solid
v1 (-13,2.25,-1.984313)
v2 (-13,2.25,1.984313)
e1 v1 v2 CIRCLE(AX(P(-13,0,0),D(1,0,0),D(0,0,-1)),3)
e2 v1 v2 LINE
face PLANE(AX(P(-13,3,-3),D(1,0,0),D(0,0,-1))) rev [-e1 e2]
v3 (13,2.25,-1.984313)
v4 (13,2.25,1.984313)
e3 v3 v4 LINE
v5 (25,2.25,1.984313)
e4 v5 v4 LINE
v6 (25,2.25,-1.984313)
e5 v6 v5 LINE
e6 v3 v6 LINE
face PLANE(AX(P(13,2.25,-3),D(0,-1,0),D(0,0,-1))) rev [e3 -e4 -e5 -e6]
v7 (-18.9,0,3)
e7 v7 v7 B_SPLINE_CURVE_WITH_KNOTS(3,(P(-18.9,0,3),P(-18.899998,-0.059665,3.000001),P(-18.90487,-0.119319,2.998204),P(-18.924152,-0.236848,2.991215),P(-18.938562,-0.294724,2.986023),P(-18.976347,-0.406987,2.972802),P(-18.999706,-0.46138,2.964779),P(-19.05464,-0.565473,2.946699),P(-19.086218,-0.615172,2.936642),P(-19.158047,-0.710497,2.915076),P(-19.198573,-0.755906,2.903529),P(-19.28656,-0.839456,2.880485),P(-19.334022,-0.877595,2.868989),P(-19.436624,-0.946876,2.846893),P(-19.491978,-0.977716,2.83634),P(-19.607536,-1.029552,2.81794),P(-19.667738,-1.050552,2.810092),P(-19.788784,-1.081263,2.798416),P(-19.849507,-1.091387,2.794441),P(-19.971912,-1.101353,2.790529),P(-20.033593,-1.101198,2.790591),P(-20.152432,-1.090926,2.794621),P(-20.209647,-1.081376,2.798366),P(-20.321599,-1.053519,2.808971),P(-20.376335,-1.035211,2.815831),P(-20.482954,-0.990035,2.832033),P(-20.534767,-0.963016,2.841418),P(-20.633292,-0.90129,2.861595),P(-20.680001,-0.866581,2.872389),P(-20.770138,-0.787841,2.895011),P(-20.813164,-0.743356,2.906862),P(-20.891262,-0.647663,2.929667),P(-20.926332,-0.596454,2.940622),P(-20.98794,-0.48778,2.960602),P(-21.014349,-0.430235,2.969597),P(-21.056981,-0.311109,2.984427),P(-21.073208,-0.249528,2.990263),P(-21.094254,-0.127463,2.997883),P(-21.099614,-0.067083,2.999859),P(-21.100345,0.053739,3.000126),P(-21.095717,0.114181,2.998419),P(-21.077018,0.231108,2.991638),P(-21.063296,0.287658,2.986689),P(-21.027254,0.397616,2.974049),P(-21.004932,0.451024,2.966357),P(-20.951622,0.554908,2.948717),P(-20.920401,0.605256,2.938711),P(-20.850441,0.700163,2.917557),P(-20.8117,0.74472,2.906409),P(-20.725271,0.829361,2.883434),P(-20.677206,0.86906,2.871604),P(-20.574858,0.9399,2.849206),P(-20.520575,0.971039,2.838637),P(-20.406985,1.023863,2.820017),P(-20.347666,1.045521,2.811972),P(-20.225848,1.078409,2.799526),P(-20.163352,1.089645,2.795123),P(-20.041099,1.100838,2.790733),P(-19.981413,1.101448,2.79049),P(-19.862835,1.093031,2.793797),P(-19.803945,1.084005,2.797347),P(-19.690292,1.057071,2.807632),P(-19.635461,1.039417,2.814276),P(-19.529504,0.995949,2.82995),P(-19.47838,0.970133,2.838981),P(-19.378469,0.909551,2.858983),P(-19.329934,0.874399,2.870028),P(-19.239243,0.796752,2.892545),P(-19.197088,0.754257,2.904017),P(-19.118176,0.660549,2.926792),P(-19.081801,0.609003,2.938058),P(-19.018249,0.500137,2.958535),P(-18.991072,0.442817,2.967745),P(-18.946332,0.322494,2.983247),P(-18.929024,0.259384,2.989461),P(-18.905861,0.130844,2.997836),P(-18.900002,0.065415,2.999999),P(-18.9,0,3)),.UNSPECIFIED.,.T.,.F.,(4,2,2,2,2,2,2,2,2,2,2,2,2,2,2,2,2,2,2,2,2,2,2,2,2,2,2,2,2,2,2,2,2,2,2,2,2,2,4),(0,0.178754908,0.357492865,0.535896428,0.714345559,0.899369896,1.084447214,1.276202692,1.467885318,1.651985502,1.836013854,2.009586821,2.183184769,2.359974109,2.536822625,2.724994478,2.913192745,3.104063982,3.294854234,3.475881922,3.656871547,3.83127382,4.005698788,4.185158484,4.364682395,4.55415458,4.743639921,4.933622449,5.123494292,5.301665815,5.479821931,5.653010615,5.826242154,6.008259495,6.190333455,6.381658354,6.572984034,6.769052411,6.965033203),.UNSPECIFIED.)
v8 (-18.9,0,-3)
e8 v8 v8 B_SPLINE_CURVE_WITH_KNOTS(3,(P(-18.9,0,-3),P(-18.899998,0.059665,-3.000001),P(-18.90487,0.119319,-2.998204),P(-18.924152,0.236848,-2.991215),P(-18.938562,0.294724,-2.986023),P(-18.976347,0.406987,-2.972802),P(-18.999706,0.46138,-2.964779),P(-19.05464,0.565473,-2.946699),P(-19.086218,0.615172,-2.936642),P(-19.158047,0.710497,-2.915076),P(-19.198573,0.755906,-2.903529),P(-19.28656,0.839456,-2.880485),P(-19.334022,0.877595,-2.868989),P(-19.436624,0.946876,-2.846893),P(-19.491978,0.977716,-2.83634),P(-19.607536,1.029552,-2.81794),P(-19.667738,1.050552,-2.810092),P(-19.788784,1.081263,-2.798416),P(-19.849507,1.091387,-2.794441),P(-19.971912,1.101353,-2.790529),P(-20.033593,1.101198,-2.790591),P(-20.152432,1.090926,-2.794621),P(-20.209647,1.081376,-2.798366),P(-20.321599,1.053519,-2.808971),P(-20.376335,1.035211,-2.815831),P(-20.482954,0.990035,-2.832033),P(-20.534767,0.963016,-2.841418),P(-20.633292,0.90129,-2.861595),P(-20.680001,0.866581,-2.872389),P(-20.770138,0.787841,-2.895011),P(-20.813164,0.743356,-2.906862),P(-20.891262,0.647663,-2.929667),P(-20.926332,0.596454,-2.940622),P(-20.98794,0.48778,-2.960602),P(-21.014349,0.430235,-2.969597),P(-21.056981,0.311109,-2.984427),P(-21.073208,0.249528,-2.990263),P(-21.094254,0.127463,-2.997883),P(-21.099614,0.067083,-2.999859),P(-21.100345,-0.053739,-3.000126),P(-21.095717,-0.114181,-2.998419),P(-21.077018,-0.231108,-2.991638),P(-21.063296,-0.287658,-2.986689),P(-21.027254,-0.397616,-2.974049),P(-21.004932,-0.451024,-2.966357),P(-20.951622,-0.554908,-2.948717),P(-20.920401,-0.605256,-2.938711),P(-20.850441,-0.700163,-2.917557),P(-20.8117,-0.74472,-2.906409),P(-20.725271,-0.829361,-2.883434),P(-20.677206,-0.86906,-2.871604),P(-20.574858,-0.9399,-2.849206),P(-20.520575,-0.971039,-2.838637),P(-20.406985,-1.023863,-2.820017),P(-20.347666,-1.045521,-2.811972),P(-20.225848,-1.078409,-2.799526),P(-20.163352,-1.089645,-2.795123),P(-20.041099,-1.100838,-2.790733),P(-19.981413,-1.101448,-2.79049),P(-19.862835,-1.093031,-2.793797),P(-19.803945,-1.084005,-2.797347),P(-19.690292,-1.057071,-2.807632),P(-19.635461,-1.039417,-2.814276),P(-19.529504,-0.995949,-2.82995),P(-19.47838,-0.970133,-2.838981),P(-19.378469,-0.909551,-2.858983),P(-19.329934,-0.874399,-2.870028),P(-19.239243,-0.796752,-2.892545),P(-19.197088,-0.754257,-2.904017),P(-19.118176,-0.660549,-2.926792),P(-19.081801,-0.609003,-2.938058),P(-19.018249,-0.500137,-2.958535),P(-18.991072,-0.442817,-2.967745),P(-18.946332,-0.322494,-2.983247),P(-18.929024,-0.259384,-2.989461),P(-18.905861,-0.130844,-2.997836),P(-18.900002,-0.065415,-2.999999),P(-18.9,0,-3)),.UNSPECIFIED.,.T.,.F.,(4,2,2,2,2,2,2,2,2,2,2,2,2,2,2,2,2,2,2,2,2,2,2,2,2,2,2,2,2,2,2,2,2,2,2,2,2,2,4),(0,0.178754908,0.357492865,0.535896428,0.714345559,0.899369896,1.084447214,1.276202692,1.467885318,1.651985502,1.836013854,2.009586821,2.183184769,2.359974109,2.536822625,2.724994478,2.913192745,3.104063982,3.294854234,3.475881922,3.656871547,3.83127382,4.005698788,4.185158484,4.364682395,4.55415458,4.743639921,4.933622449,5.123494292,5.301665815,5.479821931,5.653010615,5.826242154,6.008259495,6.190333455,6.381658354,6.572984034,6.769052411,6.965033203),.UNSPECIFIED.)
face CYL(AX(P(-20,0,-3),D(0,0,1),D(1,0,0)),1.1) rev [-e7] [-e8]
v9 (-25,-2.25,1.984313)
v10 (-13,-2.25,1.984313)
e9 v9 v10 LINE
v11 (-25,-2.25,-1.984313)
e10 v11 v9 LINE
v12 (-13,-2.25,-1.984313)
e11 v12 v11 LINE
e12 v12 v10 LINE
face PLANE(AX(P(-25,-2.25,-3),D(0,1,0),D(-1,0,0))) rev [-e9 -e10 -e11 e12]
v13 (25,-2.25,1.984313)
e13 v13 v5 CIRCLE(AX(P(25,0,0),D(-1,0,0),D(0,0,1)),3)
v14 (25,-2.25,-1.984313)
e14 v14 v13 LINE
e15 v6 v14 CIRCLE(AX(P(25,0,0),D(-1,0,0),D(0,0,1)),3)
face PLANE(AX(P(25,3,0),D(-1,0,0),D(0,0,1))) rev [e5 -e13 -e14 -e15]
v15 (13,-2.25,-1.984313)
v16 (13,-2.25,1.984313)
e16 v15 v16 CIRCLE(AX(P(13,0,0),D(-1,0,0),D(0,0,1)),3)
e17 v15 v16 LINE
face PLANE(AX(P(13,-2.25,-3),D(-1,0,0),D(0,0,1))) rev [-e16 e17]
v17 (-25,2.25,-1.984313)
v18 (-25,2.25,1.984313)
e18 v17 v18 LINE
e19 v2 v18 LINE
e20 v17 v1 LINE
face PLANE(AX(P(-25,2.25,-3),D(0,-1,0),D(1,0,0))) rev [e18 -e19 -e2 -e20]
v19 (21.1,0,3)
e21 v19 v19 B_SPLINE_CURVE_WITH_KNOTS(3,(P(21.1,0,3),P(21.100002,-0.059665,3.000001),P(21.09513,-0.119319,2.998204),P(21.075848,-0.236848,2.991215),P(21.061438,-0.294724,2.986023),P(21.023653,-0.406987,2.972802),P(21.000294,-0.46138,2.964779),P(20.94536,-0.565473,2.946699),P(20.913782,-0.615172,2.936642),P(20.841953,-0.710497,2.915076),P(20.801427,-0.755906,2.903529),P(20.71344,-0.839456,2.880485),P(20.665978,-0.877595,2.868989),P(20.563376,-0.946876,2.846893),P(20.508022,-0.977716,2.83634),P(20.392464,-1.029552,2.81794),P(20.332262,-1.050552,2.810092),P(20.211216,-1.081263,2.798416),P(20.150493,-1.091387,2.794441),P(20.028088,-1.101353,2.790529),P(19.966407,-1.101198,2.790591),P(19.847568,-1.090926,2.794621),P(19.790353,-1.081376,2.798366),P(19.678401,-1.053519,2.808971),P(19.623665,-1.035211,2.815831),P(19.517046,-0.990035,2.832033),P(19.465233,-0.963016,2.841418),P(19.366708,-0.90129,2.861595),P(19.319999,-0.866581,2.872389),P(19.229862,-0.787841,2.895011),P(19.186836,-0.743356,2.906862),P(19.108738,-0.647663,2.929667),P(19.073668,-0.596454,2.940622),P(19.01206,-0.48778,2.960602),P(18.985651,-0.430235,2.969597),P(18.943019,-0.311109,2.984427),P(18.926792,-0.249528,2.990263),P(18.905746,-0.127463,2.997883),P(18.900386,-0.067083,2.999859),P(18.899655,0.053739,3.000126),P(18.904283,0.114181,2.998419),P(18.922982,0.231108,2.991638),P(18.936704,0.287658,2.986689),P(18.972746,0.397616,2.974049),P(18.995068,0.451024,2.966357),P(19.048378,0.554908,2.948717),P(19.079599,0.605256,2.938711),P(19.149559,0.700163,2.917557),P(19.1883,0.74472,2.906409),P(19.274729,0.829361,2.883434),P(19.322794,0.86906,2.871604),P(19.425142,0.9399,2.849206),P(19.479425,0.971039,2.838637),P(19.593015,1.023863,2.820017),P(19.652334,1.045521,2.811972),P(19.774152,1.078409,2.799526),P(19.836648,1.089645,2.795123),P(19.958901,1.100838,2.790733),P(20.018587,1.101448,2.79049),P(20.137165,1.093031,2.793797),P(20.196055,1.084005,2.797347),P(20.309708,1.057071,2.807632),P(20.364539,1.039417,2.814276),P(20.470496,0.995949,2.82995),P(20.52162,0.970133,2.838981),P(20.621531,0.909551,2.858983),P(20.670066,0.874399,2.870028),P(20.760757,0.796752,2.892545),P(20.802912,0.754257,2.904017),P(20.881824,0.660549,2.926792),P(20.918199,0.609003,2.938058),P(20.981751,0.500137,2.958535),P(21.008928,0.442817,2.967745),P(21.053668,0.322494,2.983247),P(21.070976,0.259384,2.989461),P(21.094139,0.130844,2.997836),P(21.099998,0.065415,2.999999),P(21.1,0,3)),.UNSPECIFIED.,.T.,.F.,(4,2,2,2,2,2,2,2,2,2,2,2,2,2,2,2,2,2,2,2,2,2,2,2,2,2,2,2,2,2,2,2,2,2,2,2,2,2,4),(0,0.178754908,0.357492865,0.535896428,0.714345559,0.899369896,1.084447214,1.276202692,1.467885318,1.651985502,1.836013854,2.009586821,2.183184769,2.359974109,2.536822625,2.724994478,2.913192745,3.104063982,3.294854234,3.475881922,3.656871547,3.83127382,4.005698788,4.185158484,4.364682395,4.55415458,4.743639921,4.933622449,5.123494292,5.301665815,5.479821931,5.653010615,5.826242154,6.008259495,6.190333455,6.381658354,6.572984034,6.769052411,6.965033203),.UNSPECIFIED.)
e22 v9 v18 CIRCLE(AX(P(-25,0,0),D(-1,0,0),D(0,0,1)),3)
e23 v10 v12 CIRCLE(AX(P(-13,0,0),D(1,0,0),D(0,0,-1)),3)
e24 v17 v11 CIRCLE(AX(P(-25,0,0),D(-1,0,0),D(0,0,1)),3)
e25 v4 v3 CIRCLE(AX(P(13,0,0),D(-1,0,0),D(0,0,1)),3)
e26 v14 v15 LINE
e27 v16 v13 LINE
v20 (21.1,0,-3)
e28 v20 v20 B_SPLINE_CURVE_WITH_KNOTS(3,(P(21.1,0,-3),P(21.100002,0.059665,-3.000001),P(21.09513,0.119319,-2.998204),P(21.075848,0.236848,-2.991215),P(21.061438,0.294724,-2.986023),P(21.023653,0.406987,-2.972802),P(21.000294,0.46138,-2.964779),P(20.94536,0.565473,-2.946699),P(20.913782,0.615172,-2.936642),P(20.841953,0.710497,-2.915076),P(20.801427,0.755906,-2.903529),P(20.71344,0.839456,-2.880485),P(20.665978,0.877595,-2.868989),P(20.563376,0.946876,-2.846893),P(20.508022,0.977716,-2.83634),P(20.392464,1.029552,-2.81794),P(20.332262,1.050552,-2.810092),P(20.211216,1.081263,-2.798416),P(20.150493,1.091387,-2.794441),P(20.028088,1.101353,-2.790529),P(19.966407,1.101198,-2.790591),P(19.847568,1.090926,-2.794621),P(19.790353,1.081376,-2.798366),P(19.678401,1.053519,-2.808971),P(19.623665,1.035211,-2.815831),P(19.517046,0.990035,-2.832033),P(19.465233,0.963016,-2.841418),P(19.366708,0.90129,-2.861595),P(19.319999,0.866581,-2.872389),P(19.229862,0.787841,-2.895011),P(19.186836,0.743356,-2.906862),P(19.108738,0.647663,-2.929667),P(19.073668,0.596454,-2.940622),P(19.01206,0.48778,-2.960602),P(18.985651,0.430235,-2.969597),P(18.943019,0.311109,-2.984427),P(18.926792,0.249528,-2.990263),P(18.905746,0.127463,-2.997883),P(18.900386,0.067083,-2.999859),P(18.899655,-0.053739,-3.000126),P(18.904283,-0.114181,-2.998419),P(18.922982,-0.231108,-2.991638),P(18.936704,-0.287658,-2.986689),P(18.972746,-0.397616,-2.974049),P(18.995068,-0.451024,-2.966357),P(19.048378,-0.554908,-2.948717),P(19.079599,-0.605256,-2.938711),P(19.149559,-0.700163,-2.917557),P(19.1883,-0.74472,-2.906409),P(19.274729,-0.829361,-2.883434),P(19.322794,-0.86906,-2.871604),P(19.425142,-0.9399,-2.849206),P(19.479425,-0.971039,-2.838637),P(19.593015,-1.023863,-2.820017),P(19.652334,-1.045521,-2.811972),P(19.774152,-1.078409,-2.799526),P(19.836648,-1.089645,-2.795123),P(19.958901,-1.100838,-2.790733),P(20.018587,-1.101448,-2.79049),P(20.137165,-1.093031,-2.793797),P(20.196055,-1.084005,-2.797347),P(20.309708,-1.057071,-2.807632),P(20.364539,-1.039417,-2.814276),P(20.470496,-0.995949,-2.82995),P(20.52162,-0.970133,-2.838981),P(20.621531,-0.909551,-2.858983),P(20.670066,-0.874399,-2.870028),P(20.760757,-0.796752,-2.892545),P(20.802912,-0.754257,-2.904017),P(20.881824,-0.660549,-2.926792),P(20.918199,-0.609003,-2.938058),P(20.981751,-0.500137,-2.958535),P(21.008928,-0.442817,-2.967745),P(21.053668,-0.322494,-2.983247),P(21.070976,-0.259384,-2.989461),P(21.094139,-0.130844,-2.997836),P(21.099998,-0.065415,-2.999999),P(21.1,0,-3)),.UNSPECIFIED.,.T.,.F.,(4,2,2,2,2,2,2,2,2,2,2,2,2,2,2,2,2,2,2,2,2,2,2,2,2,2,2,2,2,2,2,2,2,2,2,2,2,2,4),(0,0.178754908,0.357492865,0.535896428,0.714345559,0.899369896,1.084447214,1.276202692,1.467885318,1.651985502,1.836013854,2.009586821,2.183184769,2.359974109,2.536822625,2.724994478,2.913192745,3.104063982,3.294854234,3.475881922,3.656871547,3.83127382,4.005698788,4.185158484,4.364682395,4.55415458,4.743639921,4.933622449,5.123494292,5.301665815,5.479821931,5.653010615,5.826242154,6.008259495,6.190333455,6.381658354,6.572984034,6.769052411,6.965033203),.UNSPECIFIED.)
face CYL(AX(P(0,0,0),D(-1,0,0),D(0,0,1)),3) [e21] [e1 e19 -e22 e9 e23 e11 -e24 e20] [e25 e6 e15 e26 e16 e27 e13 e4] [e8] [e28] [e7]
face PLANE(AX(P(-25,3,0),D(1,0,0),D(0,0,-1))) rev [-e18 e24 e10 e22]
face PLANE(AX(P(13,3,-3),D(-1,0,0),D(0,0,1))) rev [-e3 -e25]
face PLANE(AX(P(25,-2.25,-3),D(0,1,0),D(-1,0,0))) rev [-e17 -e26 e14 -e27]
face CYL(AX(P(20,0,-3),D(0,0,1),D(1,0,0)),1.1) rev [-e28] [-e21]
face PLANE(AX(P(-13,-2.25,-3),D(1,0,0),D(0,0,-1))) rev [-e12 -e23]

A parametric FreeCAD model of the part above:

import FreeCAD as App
import Part
import Sketcher
from FreeCAD import Vector


def add_polygon(sketch, points):
    """Adds a closed chain of lines whose ends are joined by coincident constraints."""
    first, n = sketch.GeometryCount, len(points)
    for a, b in zip(points, points[1:] + points[:1]):
        sketch.addGeometry(Part.LineSegment(App.Vector(*a, 0), App.Vector(*b, 0)), False)
    for i in range(n):
        sketch.addConstraint(Sketcher.Constraint("Coincident", first + i, 2, first + (i + 1) % n, 1))

doc = App.newDocument("Part")
body = doc.addObject("PartDesign::Body", "Body")

sketch1 = doc.addObject("Sketcher::SketchObject", "Sketch")
body.addObject(sketch1)
sketch1.AttachmentSupport = (doc.XY_Plane, [""])
sketch1.MapMode = "FlatFace"
add_polygon(sketch1, [(-25, 3), (-25, 0), (25, 0), (25, 3)])
sketch1.addConstraint([
    Sketcher.Constraint("Vertical", 0),
    Sketcher.Constraint("Horizontal", 1),
    Sketcher.Constraint("Vertical", 2),
    Sketcher.Constraint("Horizontal", 3),
    Sketcher.Constraint("Symmetric", 0, 2, 1, 2, -1, 1),
    Sketcher.Constraint("DistanceX", 1, 1, 1, 2, 50.0),
    Sketcher.Constraint("DistanceY", 0, 2, 0, 1, 3.0),
])
revolution = doc.addObject("PartDesign::Revolution", "Revolution")
body.addObject(revolution)
revolution.Profile = sketch1
revolution.ReferenceAxis = (sketch1, ["H_Axis"])
revolution.Angle = 360

sketch2 = doc.addObject("Sketcher::SketchObject", "Sketch001")
body.addObject(sketch2)
sketch2.AttachmentSupport = (doc.XY_Plane, [""])
sketch2.MapMode = "FlatFace"
add_polygon(sketch2, [(-25, 3), (-25, 2.2), (-13, 2.2), (-13, 3)])
add_polygon(sketch2, [(-25, -2.2), (-25, -3), (-13, -3), (-13, -2.2)])
add_polygon(sketch2, [(13, 3), (13, 2.2), (25, 2.2), (25, 3)])
add_polygon(sketch2, [(13, -2.2), (13, -3), (25, -3), (25, -2.2)])
sketch2.addConstraint([
    Sketcher.Constraint("Vertical", 0),
    Sketcher.Constraint("Horizontal", 1),
    Sketcher.Constraint("Vertical", 2),
    Sketcher.Constraint("Horizontal", 3),
    Sketcher.Constraint("Vertical", 4),
    Sketcher.Constraint("Horizontal", 5),
    Sketcher.Constraint("Vertical", 6),
    Sketcher.Constraint("Horizontal", 7),
    Sketcher.Constraint("Vertical", 8),
    Sketcher.Constraint("Horizontal", 9),
    Sketcher.Constraint("Vertical", 10),
    Sketcher.Constraint("Horizontal", 11),
    Sketcher.Constraint("Vertical", 12),
    Sketcher.Constraint("Horizontal", 13),
    Sketcher.Constraint("Vertical", 14),
    Sketcher.Constraint("Horizontal", 15),
    Sketcher.Constraint("Symmetric", 6, 2, 8, 2, -1, 1),
    Sketcher.Constraint("Symmetric", 4, 2, 10, 2, -1, 1),
    Sketcher.Constraint("Symmetric", 2, 2, 12, 2, -1, 1),
    Sketcher.Constraint("Symmetric", 0, 2, 14, 2, -1, 1),
    Sketcher.Constraint("Symmetric", 1, 2, 8, 2, -2),
    Sketcher.Constraint("Symmetric", 3, 2, 10, 2, -2),
    Sketcher.Constraint("DistanceX", 1, 1, 1, 2, 12.0),
    Sketcher.Constraint("DistanceX", 0, 2, -1, 1, 25.0),
    Sketcher.Constraint("DistanceY", -1, 1, 2, 2, 3.0),
    Sketcher.Constraint("DistanceY", 0, 2, 0, 1, 0.75),
])
pocket1 = doc.addObject("PartDesign::Pocket", "Pocket")
body.addObject(pocket1)
pocket1.Profile = sketch2
pocket1.Type = "ThroughAll"
pocket1.Midplane = True

sketch3 = doc.addObject("Sketcher::SketchObject", "Sketch002")
body.addObject(sketch3)
sketch3.AttachmentSupport = (doc.XY_Plane, [""])
sketch3.MapMode = "FlatFace"
sketch3.addGeometry([
    Part.Circle(Vector(-20, 0, 0), Vector(0, 0, 1), 1.1),
    Part.Circle(Vector(20, 0, 0), Vector(0, 0, 1), 1.1),
], False)
sketch3.addConstraint([
    Sketcher.Constraint("Equal", 0, 1),
    Sketcher.Constraint("Symmetric", 0, 3, 1, 3, -1, 1),
    Sketcher.Constraint("PointOnObject", 0, 3, -1),
    Sketcher.Constraint("Diameter", 0, 2.2),
    Sketcher.Constraint("DistanceX", 0, 3, -1, 1, 20.0),
])
pocket2 = doc.addObject("PartDesign::Pocket", "Pocket001")
body.addObject(pocket2)
pocket2.Profile = sketch3
pocket2.Type = "ThroughAll"
pocket2.Midplane = True

doc.recompute()
